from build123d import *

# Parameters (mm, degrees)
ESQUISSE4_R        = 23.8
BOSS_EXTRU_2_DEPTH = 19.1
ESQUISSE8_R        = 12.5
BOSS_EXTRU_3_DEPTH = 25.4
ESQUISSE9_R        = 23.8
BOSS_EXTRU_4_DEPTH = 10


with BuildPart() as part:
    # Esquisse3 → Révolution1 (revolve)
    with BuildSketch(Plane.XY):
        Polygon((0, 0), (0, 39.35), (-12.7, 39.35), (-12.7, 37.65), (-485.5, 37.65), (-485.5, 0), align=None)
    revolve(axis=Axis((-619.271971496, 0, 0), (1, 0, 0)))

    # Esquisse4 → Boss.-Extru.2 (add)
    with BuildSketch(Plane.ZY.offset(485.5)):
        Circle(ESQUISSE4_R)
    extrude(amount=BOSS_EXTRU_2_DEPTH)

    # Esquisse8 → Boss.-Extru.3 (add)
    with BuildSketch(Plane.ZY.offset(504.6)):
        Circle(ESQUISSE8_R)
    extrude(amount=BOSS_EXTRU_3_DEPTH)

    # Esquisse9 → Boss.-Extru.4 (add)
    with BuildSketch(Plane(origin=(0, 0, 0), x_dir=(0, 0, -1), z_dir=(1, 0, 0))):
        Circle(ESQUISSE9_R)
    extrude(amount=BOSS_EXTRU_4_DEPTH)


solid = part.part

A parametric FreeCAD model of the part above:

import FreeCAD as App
import Part
import Sketcher


def add_polygon(sketch, points):
    """Adds a closed chain of lines whose ends are joined by coincident constraints."""
    first, n = sketch.GeometryCount, len(points)
    for a, b in zip(points, points[1:] + points[:1]):
        sketch.addGeometry(Part.LineSegment(App.Vector(*a, 0), App.Vector(*b, 0)), False)
    for i in range(n):
        sketch.addConstraint(Sketcher.Constraint("Coincident", first + i, 2, first + (i + 1) % n, 1))

doc = App.newDocument("Part")
body = doc.addObject("PartDesign::Body", "Body")

sketch1 = body.newObject("Sketcher::SketchObject", "Sketch")
sketch1.AttachmentSupport = (doc.getObject("XY_Plane"), [""])
sketch1.MapMode = "FlatFace"
add_polygon(sketch1, [(0, 0), (0, 39.4), (-12.7, 39.4), (-12.7, 37.6), (-485.5, 37.6), (-485.5, 0)])
sketch1.addConstraint([
    Sketcher.Constraint("Vertical", 0),
    Sketcher.Constraint("Horizontal", 1),
    Sketcher.Constraint("Vertical", 2),
    Sketcher.Constraint("Horizontal", 3),
    Sketcher.Constraint("Vertical", 4),
    Sketcher.Constraint("Horizontal", 5),
    Sketcher.Constraint("Coincident", 5, 2, -1, 1),
    Sketcher.Constraint("DistanceX", 1, 2, 1, 1, 12.7),
    Sketcher.Constraint("DistanceX", 3, 2, 3, 1, 472.8),
    Sketcher.Constraint("DistanceY", 2, 2, 2, 1, 1.7),
    Sketcher.Constraint("DistanceY", 0, 1, 0, 2, 39.35),
])
revolution = body.newObject("PartDesign::Revolution", "Revolution")
revolution.Profile = sketch1
revolution.ReferenceAxis = (sketch1, ["H_Axis"])
revolution.Angle = 360

sketch2 = body.newObject("Sketcher::SketchObject", "Sketch001")
sketch2.AttachmentSupport = (doc.getObject("YZ_Plane"), [""])
sketch2.MapMode = "FlatFace"
sketch2.AttachmentOffset = App.Placement(App.Vector(0, 0, -485.5), App.Rotation())
sketch2.addGeometry(Part.Circle(App.Vector(0, 0, 0), App.Vector(0, 0, 1), 24), False)
sketch2.addConstraint([
    Sketcher.Constraint("Coincident", 0, 3, -1, 1),
    Sketcher.Constraint("Diameter", 0, 47.6),
])
pad1 = body.newObject("PartDesign::Pad", "Pad")
pad1.Profile = sketch2
pad1.Length = 19.1
pad1.Reversed = True

sketch3 = body.newObject("Sketcher::SketchObject", "Sketch002")
sketch3.AttachmentSupport = (doc.getObject("YZ_Plane"), [""])
sketch3.MapMode = "FlatFace"
sketch3.AttachmentOffset = App.Placement(App.Vector(0, 0, -504.6), App.Rotation())
sketch3.addGeometry(Part.Circle(App.Vector(0, 0, 0), App.Vector(0, 0, 1), 12), False)
sketch3.addConstraint([
    Sketcher.Constraint("Coincident", 0, 3, -1, 1),
    Sketcher.Constraint("Diameter", 0, 25.0),
])
pad2 = body.newObject("PartDesign::Pad", "Pad001")
pad2.Profile = sketch3
pad2.Length = 25.4
pad2.Reversed = True

sketch4 = body.newObject("Sketcher::SketchObject", "Sketch003")
sketch4.AttachmentSupport = (doc.getObject("YZ_Plane"), [""])
sketch4.MapMode = "FlatFace"
sketch4.addGeometry(Part.Circle(App.Vector(0, 0, 0), App.Vector(0, 0, 1), 24), False)
sketch4.addConstraint([
    Sketcher.Constraint("Coincident", 0, 3, -1, 1),
    Sketcher.Constraint("Diameter", 0, 47.6),
])
pad3 = body.newObject("PartDesign::Pad", "Pad002")
pad3.Profile = sketch4
pad3.Length = 10

doc.recompute()
